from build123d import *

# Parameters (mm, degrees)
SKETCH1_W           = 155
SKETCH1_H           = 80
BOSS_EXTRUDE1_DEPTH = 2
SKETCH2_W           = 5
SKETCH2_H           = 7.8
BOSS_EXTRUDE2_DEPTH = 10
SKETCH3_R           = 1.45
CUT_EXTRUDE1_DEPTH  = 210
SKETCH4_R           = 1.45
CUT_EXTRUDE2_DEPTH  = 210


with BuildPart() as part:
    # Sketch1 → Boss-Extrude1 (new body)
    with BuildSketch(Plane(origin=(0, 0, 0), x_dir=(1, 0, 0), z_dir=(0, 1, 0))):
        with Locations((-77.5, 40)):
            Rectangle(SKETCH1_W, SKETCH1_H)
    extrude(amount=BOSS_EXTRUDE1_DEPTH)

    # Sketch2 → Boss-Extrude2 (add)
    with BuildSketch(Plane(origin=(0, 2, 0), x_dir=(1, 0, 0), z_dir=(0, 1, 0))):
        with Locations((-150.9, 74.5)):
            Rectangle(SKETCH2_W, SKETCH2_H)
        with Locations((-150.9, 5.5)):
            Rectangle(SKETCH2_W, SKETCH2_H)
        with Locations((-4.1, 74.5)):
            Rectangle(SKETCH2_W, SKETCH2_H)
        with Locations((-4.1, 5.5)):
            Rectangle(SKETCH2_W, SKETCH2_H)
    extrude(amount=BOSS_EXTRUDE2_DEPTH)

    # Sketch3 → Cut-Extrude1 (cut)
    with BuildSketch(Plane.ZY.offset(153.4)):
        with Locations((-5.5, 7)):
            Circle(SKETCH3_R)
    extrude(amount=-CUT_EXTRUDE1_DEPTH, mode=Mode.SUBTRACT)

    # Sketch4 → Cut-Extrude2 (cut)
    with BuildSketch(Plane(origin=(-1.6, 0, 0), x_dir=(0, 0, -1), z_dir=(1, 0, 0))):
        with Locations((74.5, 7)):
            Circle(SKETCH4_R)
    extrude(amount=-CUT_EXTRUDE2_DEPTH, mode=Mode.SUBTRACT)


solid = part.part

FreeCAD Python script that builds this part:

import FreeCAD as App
import Part
import Sketcher
Q = App.Units.Quantity

doc = App.newDocument("Part")
body = doc.addObject("PartDesign::Body", "Body")

# Sketch on XZ plane
sketch1 = doc.addObject("Sketcher::SketchObject", "Sketch")
body.addObject(sketch1)
sketch1.AttachmentSupport = (doc.XZ_Plane, [""])
sketch1.MapMode = "FlatFace"
sketch1.addGeometry(Part.LineSegment(App.Vector(-155, -80, 0), App.Vector(-155, 0, 0)), False)
sketch1.addGeometry(Part.LineSegment(App.Vector(-155, 0, 0), App.Vector(0, 0, 0)), False)
sketch1.addGeometry(Part.LineSegment(App.Vector(0, 0, 0), App.Vector(0, -80, 0)), False)
sketch1.addGeometry(Part.LineSegment(App.Vector(0, -80, 0), App.Vector(-155, -80, 0)), False)
sketch1.addConstraint(Sketcher.Constraint("Coincident", 0, 2, 1, 1))
sketch1.addConstraint(Sketcher.Constraint("Coincident", 1, 2, 2, 1))
sketch1.addConstraint(Sketcher.Constraint("Coincident", 2, 2, 3, 1))
sketch1.addConstraint(Sketcher.Constraint("Coincident", 3, 2, 0, 1))
sketch1.addConstraint(Sketcher.Constraint("Vertical", 0))
sketch1.addConstraint(Sketcher.Constraint("Horizontal", 1))
sketch1.addConstraint(Sketcher.Constraint("Vertical", 2))
sketch1.addConstraint(Sketcher.Constraint("Horizontal", 3))
sketch1.addConstraint(Sketcher.Constraint("Coincident", 1, 2, -1, 1))
sketch1.addConstraint(Sketcher.Constraint("DistanceX", 1, 1, 1, 2, Q("155 mm")))
sketch1.addConstraint(Sketcher.Constraint("DistanceY", 0, 1, 0, 2, Q("80 mm")))
pad1 = doc.addObject("PartDesign::Pad", "Pad")
body.addObject(pad1)
pad1.Profile = sketch1
pad1.Length = 2
pad1.Reversed = True

# Sketch on XZ plane
sketch2 = doc.addObject("Sketcher::SketchObject", "Sketch001")
body.addObject(sketch2)
sketch2.AttachmentSupport = (doc.XZ_Plane, [""])
sketch2.MapMode = "FlatFace"
sketch2.AttachmentOffset = App.Placement(App.Vector(0, 0, -2), App.Rotation())
sketch2.addGeometry(Part.LineSegment(App.Vector(-153.4, -78.4, 0), App.Vector(-153.4, -70.6, 0)), False)
sketch2.addGeometry(Part.LineSegment(App.Vector(-153.4, -70.6, 0), App.Vector(-148.4, -70.6, 0)), False)
sketch2.addGeometry(Part.LineSegment(App.Vector(-148.4, -70.6, 0), App.Vector(-148.4, -78.4, 0)), False)
sketch2.addGeometry(Part.LineSegment(App.Vector(-148.4, -78.4, 0), App.Vector(-153.4, -78.4, 0)), False)
sketch2.addGeometry(Part.LineSegment(App.Vector(-153.4, -9.4, 0), App.Vector(-153.4, -1.6, 0)), False)
sketch2.addGeometry(Part.LineSegment(App.Vector(-153.4, -1.6, 0), App.Vector(-148.4, -1.6, 0)), False)
sketch2.addGeometry(Part.LineSegment(App.Vector(-148.4, -1.6, 0), App.Vector(-148.4, -9.4, 0)), False)
sketch2.addGeometry(Part.LineSegment(App.Vector(-148.4, -9.4, 0), App.Vector(-153.4, -9.4, 0)), False)
sketch2.addGeometry(Part.LineSegment(App.Vector(-6.6, -78.4, 0), App.Vector(-6.6, -70.6, 0)), False)
sketch2.addGeometry(Part.LineSegment(App.Vector(-6.6, -70.6, 0), App.Vector(-1.6, -70.6, 0)), False)
sketch2.addGeometry(Part.LineSegment(App.Vector(-1.6, -70.6, 0), App.Vector(-1.6, -78.4, 0)), False)
sketch2.addGeometry(Part.LineSegment(App.Vector(-1.6, -78.4, 0), App.Vector(-6.6, -78.4, 0)), False)
sketch2.addGeometry(Part.LineSegment(App.Vector(-6.6, -9.4, 0), App.Vector(-6.6, -1.6, 0)), False)
sketch2.addGeometry(Part.LineSegment(App.Vector(-6.6, -1.6, 0), App.Vector(-1.6, -1.6, 0)), False)
sketch2.addGeometry(Part.LineSegment(App.Vector(-1.6, -1.6, 0), App.Vector(-1.6, -9.4, 0)), False)
sketch2.addGeometry(Part.LineSegment(App.Vector(-1.6, -9.4, 0), App.Vector(-6.6, -9.4, 0)), False)
sketch2.addConstraint(Sketcher.Constraint("Coincident", 0, 2, 1, 1))
sketch2.addConstraint(Sketcher.Constraint("Coincident", 1, 2, 2, 1))
sketch2.addConstraint(Sketcher.Constraint("Coincident", 2, 2, 3, 1))
sketch2.addConstraint(Sketcher.Constraint("Coincident", 3, 2, 0, 1))
sketch2.addConstraint(Sketcher.Constraint("Coincident", 4, 2, 5, 1))
sketch2.addConstraint(Sketcher.Constraint("Coincident", 5, 2, 6, 1))
sketch2.addConstraint(Sketcher.Constraint("Coincident", 6, 2, 7, 1))
sketch2.addConstraint(Sketcher.Constraint("Coincident", 7, 2, 4, 1))
sketch2.addConstraint(Sketcher.Constraint("Coincident", 8, 2, 9, 1))
sketch2.addConstraint(Sketcher.Constraint("Coincident", 9, 2, 10, 1))
sketch2.addConstraint(Sketcher.Constraint("Coincident", 10, 2, 11, 1))
sketch2.addConstraint(Sketcher.Constraint("Coincident", 11, 2, 8, 1))
sketch2.addConstraint(Sketcher.Constraint("Coincident", 12, 2, 13, 1))
sketch2.addConstraint(Sketcher.Constraint("Coincident", 13, 2, 14, 1))
sketch2.addConstraint(Sketcher.Constraint("Coincident", 14, 2, 15, 1))
sketch2.addConstraint(Sketcher.Constraint("Coincident", 15, 2, 12, 1))
sketch2.addConstraint(Sketcher.Constraint("Vertical", 0))
sketch2.addConstraint(Sketcher.Constraint("Horizontal", 1))
sketch2.addConstraint(Sketcher.Constraint("Vertical", 2))
sketch2.addConstraint(Sketcher.Constraint("Horizontal", 3))
sketch2.addConstraint(Sketcher.Constraint("Vertical", 4))
sketch2.addConstraint(Sketcher.Constraint("Horizontal", 5))
sketch2.addConstraint(Sketcher.Constraint("Vertical", 6))
sketch2.addConstraint(Sketcher.Constraint("Horizontal", 7))
sketch2.addConstraint(Sketcher.Constraint("Vertical", 8))
sketch2.addConstraint(Sketcher.Constraint("Horizontal", 9))
sketch2.addConstraint(Sketcher.Constraint("Vertical", 10))
sketch2.addConstraint(Sketcher.Constraint("Horizontal", 11))
sketch2.addConstraint(Sketcher.Constraint("Vertical", 12))
sketch2.addConstraint(Sketcher.Constraint("Horizontal", 13))
sketch2.addConstraint(Sketcher.Constraint("Vertical", 14))
sketch2.addConstraint(Sketcher.Constraint("Horizontal", 15))
sketch2.addConstraint(Sketcher.Constraint("Horizontal", 1, 2, 8, 2))
sketch2.addConstraint(Sketcher.Constraint("Horizontal", 3, 2, 10, 2))
sketch2.addConstraint(Sketcher.Constraint("Horizontal", 5, 2, 12, 2))
sketch2.addConstraint(Sketcher.Constraint("Horizontal", 7, 2, 14, 2))
sketch2.addConstraint(Sketcher.Constraint("Vertical", 3, 2, 4, 2))
sketch2.addConstraint(Sketcher.Constraint("Vertical", 2, 2, 5, 2))
sketch2.addConstraint(Sketcher.Constraint("Vertical", 11, 2, 12, 2))
sketch2.addConstraint(Sketcher.Constraint("Vertical", 10, 2, 13, 2))
sketch2.addConstraint(Sketcher.Constraint("Equal", 7, 9))
sketch2.addConstraint(Sketcher.Constraint("Equal", 2, 4))
sketch2.addConstraint(Sketcher.Constraint("DistanceX", 1, 1, 1, 2, Q("5 mm")))
sketch2.addConstraint(Sketcher.Constraint("DistanceY", 0, 1, 0, 2, Q("7.8 mm")))
sketch2.addConstraint(Sketcher.Constraint("DistanceY", 0, 2, 4, 2, Q("69 mm")))
sketch2.addConstraint(Sketcher.Constraint("DistanceX", 0, 2, -1, 1, Q("153.4 mm")))
sketch2.addConstraint(Sketcher.Constraint("DistanceY", 0, 2, -1, 1, Q("70.6 mm")))
sketch2.addConstraint(Sketcher.Constraint("DistanceX", 8, 2, -1, 1, Q("6.6 mm")))
pad2 = doc.addObject("PartDesign::Pad", "Pad001")
body.addObject(pad2)
pad2.Profile = sketch2
pad2.Length = 10
pad2.Reversed = True

# Sketch on YZ plane
sketch3 = doc.addObject("Sketcher::SketchObject", "Sketch002")
body.addObject(sketch3)
sketch3.AttachmentSupport = (doc.YZ_Plane, [""])
sketch3.MapMode = "FlatFace"
sketch3.AttachmentOffset = App.Placement(App.Vector(0, 0, -153.4), App.Rotation())
sketch3.addGeometry(Part.Circle(App.Vector(7, -5.5, 0), App.Vector(0, 0, 1), 1.45), False)
sketch3.addConstraint(Sketcher.Constraint("Diameter", 0, Q("2.9 mm")))
sketch3.addConstraint(Sketcher.Constraint("DistanceX", -1, 1, 0, 3, Q("7 mm")))
sketch3.addConstraint(Sketcher.Constraint("DistanceY", 0, 3, -1, 1, Q("5.5 mm")))
pocket1 = doc.addObject("PartDesign::Pocket", "Pocket")
body.addObject(pocket1)
pocket1.Profile = sketch3
pocket1.Length = 210
pocket1.Reversed = True

# Sketch on YZ plane
sketch4 = doc.addObject("Sketcher::SketchObject", "Sketch003")
body.addObject(sketch4)
sketch4.AttachmentSupport = (doc.YZ_Plane, [""])
sketch4.MapMode = "FlatFace"
sketch4.AttachmentOffset = App.Placement(App.Vector(0, 0, -1.6), App.Rotation())
sketch4.addGeometry(Part.Circle(App.Vector(7, -74.5, 0), App.Vector(0, 0, 1), 1.45), False)
sketch4.addConstraint(Sketcher.Constraint("Diameter", 0, Q("2.9 mm")))
sketch4.addConstraint(Sketcher.Constraint("DistanceX", -1, 1, 0, 3, Q("7 mm")))
sketch4.addConstraint(Sketcher.Constraint("DistanceY", 0, 3, -1, 1, Q("74.5 mm")))
pocket2 = doc.addObject("PartDesign::Pocket", "Pocket001")
body.addObject(pocket2)
pocket2.Profile = sketch4
pocket2.Length = 210

doc.recompute()
